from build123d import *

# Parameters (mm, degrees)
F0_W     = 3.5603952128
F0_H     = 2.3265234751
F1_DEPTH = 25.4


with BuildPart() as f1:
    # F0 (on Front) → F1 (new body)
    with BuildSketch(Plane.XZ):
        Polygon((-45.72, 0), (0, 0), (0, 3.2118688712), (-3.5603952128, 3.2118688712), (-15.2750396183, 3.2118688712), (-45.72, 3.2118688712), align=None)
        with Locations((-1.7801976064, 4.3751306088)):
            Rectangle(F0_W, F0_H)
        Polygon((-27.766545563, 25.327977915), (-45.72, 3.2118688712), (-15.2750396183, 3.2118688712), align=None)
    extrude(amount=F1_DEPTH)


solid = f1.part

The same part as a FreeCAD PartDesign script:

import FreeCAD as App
import Part
import Sketcher
from FreeCAD import Vector
Q = App.Units.Quantity


def add_polygon(sketch, points):
    """Adds a closed chain of lines whose ends are joined by coincident constraints."""
    first, n = sketch.GeometryCount, len(points)
    for a, b in zip(points, points[1:] + points[:1]):
        sketch.addGeometry(Part.LineSegment(App.Vector(*a, 0), App.Vector(*b, 0)), False)
    for i in range(n):
        sketch.addConstraint(Sketcher.Constraint("Coincident", first + i, 2, first + (i + 1) % n, 1))

doc = App.newDocument("Part")
body = doc.addObject("PartDesign::Body", "Body")

# Sketch on XZ plane
sketch1 = body.newObject("Sketcher::SketchObject", "Sketch")
sketch1.AttachmentSupport = (doc.getObject("XZ_Plane"), [""])
sketch1.MapMode = "FlatFace"
add_polygon(sketch1, [(-45.72, 0), (0, 0), (0, 5.538392), (-3.560395, 5.538392), (-3.560395, 3.211869), (-15.27504, 3.211869), (-27.766546, 25.327978), (-45.72, 3.211869)])  # lines 0-7
sketch1.addConstraint([
    Sketcher.Constraint("Horizontal", 0),
    Sketcher.Constraint("Vertical", 1),
    Sketcher.Constraint("Horizontal", 2),
    Sketcher.Constraint("Vertical", 3),
    Sketcher.Constraint("Horizontal", 4),
    Sketcher.Constraint("Vertical", 7),
    Sketcher.Constraint("Coincident", 0, 2, -1, 1),
    Sketcher.Constraint("Horizontal", 4, 2, 6, 2),
    Sketcher.Constraint("Distance", 5, Q("1 in")),
    Sketcher.Constraint("DistanceX", 0, 1, 0, 2, Q("1.8 in")),
    Sketcher.Constraint("DistanceY", 7, 2, 7, 1, 3.211869),
    Sketcher.Constraint("Distance", 6, 28.48594),
    Sketcher.Constraint("DistanceX", 2, 2, 2, 1, 3.560395),
    Sketcher.Constraint("DistanceX", 4, 2, 4, 1, 11.714644),
    Sketcher.Constraint("DistanceY", 1, 1, 1, 2, 5.538392),
])
pad1 = body.newObject("PartDesign::Pad", "Pad")
pad1.Profile = sketch1
pad1.Length = Q("1 in")

doc.recompute()
